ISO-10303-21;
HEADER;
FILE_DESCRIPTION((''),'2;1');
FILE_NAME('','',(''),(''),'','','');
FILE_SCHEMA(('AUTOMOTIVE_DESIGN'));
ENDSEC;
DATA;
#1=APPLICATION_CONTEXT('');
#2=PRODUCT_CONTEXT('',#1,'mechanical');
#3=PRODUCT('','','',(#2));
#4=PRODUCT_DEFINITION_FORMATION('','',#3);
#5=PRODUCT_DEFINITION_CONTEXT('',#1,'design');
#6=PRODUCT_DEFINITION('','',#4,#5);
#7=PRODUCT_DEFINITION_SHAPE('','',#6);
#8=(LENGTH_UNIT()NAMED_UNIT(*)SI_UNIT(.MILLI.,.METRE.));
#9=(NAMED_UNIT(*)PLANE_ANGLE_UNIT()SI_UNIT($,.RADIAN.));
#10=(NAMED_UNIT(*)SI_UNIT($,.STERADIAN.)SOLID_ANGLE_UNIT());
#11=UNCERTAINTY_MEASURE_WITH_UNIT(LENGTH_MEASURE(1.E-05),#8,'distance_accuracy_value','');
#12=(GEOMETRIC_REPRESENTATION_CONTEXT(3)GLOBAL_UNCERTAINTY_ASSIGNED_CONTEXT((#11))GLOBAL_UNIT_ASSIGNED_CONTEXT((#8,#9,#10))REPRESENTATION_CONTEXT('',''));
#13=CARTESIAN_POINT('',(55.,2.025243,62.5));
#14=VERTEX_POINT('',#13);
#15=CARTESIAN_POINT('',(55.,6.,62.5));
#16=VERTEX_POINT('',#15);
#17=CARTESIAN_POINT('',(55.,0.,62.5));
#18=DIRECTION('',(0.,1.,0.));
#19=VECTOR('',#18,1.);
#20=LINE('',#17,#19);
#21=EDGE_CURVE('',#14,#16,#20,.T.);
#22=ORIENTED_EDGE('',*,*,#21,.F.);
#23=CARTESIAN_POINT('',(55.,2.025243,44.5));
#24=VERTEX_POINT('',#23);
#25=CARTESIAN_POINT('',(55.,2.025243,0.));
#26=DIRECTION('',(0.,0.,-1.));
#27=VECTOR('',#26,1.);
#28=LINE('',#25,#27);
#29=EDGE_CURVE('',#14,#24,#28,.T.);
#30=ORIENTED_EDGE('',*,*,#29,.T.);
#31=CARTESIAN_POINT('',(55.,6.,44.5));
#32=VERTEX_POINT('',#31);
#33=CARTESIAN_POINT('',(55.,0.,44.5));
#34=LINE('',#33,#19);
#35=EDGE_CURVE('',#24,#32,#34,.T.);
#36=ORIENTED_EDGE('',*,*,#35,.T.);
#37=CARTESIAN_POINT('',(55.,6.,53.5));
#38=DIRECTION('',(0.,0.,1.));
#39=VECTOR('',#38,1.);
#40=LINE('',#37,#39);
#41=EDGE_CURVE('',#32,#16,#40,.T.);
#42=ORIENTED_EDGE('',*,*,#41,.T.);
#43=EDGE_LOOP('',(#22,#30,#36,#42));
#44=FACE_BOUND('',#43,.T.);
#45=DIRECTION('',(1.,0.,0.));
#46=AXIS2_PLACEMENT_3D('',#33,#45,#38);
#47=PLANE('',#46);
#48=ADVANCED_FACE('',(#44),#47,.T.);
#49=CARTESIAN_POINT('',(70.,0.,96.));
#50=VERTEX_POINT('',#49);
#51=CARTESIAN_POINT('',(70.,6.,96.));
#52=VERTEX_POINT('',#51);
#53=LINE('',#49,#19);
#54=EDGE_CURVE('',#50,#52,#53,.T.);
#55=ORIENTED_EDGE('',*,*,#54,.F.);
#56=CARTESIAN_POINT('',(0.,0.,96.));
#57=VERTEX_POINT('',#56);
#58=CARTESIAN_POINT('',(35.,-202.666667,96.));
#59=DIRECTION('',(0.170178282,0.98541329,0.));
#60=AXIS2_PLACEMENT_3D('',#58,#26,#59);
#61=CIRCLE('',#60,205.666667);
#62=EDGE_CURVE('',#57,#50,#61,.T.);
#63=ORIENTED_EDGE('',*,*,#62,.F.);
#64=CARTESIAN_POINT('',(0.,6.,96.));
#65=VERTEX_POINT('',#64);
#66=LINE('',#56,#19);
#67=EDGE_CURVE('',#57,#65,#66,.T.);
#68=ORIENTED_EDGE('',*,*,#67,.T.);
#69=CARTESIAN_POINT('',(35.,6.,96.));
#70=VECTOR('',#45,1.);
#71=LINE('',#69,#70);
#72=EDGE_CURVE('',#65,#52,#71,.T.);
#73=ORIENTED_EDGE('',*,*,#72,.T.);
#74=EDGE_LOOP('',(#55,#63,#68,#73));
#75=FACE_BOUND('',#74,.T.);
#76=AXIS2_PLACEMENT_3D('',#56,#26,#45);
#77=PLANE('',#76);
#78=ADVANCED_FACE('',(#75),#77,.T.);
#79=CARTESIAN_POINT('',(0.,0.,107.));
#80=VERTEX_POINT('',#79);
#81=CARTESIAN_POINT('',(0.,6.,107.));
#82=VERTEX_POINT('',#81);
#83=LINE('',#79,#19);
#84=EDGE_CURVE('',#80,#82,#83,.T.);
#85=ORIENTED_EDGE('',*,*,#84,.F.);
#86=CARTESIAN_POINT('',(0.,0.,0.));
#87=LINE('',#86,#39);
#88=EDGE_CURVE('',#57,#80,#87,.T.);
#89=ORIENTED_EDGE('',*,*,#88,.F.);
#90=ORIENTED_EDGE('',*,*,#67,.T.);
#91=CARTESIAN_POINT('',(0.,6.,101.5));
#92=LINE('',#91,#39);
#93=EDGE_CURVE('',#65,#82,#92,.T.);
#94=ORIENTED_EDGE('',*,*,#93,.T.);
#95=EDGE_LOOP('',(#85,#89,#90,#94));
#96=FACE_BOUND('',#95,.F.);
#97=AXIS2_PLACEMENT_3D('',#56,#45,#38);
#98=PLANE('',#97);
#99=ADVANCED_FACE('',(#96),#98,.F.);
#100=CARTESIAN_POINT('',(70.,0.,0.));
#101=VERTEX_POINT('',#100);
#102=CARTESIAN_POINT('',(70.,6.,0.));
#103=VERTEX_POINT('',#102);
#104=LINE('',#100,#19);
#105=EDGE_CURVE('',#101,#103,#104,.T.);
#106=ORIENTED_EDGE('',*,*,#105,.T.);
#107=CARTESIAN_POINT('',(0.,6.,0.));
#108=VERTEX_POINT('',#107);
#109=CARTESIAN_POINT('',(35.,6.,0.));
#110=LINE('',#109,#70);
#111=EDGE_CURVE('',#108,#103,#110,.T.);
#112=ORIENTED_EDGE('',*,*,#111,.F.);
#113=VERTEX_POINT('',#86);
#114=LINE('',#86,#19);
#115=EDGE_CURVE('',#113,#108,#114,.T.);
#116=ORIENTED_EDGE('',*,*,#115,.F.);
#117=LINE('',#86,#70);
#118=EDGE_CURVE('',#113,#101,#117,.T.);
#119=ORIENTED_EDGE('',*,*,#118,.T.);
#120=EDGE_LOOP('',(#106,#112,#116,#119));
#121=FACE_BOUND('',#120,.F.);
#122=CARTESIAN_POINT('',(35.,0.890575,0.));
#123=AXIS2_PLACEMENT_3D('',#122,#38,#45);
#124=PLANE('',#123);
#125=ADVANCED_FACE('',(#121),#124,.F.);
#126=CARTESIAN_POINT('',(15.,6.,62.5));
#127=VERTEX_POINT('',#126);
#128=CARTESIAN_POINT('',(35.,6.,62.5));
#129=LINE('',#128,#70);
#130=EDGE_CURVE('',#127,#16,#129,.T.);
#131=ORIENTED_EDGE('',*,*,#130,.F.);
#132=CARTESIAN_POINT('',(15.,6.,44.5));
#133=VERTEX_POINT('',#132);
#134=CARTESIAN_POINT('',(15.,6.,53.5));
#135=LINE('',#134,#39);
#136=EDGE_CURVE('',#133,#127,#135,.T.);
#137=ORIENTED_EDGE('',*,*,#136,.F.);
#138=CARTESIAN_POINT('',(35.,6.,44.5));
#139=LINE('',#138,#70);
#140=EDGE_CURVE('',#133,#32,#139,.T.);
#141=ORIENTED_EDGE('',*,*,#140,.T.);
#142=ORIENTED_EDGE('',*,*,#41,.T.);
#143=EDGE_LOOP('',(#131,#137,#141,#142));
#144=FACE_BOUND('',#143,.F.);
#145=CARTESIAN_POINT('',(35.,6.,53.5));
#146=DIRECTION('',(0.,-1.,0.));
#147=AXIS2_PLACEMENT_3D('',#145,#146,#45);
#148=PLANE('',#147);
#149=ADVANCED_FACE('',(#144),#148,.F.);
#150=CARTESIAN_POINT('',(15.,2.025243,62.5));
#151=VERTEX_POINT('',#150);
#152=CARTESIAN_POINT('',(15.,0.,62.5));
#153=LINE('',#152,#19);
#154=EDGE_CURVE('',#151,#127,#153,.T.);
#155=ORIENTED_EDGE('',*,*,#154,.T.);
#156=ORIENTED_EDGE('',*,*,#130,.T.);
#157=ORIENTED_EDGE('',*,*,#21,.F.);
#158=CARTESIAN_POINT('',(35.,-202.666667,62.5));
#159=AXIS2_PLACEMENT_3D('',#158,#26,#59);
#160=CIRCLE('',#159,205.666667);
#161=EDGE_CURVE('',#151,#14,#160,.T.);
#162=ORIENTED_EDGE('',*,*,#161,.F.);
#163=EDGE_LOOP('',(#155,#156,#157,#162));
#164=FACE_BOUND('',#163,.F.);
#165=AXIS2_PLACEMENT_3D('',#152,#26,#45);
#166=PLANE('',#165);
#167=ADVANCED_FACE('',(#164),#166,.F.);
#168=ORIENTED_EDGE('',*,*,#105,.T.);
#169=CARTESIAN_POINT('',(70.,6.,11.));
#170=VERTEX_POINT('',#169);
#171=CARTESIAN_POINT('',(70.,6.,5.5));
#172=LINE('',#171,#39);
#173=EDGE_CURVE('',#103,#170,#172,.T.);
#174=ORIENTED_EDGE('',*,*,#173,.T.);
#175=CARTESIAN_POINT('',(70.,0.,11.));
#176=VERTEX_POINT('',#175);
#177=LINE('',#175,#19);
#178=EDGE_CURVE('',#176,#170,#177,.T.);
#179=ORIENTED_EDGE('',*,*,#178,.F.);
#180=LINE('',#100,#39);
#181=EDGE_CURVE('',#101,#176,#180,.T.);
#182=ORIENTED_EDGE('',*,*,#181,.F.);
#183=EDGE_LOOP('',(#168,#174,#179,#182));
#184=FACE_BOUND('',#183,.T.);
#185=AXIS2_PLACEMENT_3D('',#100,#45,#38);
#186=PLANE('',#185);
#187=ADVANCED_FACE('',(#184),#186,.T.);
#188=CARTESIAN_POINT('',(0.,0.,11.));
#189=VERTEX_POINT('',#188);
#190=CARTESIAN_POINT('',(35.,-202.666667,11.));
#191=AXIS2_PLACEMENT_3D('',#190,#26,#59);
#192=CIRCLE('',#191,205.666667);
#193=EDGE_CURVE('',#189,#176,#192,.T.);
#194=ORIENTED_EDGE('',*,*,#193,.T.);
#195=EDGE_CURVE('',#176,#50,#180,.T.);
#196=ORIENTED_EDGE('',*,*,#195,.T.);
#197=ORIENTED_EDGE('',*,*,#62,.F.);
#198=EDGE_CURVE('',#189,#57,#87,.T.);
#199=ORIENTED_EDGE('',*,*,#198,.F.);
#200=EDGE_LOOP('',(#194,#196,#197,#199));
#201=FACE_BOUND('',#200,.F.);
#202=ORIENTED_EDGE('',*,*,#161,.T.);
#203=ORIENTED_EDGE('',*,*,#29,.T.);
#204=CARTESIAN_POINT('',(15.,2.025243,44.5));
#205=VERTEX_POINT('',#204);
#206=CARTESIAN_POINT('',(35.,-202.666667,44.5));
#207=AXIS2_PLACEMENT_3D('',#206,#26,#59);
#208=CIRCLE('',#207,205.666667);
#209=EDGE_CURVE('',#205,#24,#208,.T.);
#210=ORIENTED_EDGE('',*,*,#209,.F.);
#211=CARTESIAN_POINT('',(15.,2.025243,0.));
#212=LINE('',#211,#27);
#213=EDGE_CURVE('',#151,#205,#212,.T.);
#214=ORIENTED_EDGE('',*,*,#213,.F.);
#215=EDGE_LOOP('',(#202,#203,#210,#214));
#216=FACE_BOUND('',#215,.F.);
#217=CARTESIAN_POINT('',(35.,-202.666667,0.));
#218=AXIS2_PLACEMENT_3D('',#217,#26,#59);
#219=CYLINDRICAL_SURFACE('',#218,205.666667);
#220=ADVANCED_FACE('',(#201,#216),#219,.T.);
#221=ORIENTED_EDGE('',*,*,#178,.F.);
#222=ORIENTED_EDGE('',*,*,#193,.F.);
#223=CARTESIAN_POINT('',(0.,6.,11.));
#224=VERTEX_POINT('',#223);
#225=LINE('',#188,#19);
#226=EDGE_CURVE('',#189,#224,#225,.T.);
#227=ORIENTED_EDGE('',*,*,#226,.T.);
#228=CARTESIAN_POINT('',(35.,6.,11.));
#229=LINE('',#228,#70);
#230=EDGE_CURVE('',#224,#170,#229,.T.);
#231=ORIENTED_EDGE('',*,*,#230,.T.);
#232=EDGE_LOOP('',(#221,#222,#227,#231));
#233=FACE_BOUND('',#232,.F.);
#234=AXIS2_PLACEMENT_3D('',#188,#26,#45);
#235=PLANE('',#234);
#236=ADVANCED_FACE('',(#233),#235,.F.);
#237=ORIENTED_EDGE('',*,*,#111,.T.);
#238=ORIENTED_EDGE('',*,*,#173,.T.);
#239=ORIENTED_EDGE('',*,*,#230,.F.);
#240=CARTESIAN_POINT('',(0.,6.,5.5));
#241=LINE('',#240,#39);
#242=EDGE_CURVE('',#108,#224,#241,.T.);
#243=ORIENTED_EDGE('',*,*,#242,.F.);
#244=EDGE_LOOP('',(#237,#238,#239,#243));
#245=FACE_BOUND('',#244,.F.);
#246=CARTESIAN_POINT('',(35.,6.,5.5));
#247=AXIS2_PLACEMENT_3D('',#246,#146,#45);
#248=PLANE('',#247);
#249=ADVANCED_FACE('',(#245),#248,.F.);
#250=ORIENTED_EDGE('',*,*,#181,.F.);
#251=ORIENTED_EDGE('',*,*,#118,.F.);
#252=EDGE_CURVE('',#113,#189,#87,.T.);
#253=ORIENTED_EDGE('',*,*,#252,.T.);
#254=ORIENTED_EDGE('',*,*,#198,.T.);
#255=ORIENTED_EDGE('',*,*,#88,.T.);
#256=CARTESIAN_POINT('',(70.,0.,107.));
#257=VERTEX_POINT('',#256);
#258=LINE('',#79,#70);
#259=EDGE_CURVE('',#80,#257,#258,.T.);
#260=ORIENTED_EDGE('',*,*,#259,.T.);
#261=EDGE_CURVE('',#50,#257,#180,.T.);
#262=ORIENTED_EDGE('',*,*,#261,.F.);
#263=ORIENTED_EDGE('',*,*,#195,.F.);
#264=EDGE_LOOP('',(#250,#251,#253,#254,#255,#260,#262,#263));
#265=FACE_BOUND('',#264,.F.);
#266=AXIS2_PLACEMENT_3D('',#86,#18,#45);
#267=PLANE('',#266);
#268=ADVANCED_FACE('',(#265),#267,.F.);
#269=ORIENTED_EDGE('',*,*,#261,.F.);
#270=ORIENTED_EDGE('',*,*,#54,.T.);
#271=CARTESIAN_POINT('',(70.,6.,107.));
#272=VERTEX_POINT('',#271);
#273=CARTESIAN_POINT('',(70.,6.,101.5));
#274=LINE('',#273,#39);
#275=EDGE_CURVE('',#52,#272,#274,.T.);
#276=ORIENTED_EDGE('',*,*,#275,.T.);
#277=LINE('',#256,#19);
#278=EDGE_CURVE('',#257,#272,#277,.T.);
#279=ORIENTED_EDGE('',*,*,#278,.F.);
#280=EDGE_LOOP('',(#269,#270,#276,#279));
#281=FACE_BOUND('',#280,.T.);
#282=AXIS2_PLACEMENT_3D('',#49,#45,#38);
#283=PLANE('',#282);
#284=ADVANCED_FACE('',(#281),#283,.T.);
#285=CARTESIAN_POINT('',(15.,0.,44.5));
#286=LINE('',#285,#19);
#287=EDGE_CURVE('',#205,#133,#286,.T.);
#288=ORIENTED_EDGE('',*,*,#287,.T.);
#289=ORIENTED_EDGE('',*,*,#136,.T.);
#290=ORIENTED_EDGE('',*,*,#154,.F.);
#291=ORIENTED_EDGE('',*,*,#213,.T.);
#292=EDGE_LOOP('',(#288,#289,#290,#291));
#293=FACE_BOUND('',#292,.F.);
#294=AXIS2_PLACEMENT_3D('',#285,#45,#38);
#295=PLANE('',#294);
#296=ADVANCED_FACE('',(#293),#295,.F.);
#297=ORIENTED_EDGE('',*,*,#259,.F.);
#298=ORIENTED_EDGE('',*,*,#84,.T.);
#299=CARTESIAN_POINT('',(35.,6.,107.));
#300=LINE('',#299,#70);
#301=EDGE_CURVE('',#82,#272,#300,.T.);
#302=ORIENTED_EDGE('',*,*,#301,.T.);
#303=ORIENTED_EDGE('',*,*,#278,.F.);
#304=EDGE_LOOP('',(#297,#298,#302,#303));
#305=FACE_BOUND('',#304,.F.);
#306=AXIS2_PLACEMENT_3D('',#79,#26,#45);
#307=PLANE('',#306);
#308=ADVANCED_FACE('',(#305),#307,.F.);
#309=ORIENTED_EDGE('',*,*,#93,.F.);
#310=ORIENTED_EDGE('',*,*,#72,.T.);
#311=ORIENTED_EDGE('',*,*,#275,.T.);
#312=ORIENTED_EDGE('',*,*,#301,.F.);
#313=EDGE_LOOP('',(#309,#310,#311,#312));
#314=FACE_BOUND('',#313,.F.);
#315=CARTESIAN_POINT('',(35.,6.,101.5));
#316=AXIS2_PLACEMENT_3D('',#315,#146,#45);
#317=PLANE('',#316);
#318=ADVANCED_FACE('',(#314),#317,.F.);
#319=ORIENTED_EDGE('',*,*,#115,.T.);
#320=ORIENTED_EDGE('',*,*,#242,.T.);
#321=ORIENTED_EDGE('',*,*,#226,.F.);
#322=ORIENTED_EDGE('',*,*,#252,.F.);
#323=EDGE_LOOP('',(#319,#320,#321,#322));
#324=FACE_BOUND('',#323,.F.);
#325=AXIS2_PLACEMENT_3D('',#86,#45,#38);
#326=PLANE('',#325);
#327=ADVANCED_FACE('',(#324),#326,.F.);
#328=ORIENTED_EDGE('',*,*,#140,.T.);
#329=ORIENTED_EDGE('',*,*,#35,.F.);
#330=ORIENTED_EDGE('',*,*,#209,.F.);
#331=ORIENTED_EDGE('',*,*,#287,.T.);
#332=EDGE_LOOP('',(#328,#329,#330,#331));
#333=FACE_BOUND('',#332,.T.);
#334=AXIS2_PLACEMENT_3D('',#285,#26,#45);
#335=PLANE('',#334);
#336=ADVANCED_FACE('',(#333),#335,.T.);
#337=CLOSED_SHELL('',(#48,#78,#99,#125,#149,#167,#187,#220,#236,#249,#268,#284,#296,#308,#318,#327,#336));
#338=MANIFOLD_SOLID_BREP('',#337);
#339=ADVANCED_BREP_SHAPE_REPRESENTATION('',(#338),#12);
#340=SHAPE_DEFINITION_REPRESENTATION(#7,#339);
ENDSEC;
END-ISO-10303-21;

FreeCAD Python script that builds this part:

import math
import FreeCAD as App
import Part
import Sketcher
from FreeCAD import Vector

doc = App.newDocument("Part")
params = doc.addObject("Spreadsheet::Sheet", "Params")
for row, (alias, value) in enumerate([
    ("sketch1_width", "70 mm"),
    ("pad1_length", "107 mm"),
    ("sketch2_width", "70 mm"),
    ("sketch2_width2", "40 mm"),
    ("sketch2_height", "11 mm"),
    ("sketch2_height2", "18 mm"),
    ("pad2_length", "6 mm"),
], start=1):
    params.set(f"A{row}", alias)
    params.set(f"B{row}", "=" + value)
    params.setAlias(f"B{row}", alias)

body = doc.addObject("PartDesign::Body", "Body")

# Sketch on XY plane
sketch1 = body.newObject("Sketcher::SketchObject", "Sketch")
sketch1.AttachmentSupport = (doc.getObject("XY_Plane"), [""])
sketch1.MapMode = "FlatFace"
sketch1.addGeometry([
    Part.LineSegment(Vector(0, 0, 0), Vector(70, 0, 0)),
    Part.ArcOfCircle(Part.Circle(Vector(35, -203, 0), Vector(0, 0, 1), 206), math.radians(80.2), math.radians(99.8)),
], False)
sketch1.addConstraint([
    Sketcher.Constraint("Coincident", 0, 1, 1, 2),
    Sketcher.Constraint("Coincident", 1, 1, 0, 2),
    Sketcher.Constraint("Horizontal", 0),
    Sketcher.Constraint("Coincident", 0, 1, -1, 1),
    Sketcher.Constraint("DistanceX", 0, 1, 0, 2, 70.0),
    Sketcher.Constraint("Radius", 1, 205.666667),
])
sketch1.setExpression("Constraints[4]", "Params.sketch1_width")
pad1 = body.newObject("PartDesign::Pad", "Pad")
pad1.Profile = sketch1
pad1.setExpression("Length", "Params.pad1_length")

# Sketch on XZ plane
sketch2 = body.newObject("Sketcher::SketchObject", "Sketch001")
sketch2.AttachmentSupport = (doc.getObject("XZ_Plane"), [""])
sketch2.MapMode = "FlatFace"
sketch2.addGeometry([
    Part.LineSegment(Vector(0, 107, 0), Vector(0, 96, 0)),  # 0
    Part.LineSegment(Vector(0, 96, 0), Vector(70, 96, 0)),  # 1
    Part.LineSegment(Vector(70, 96, 0), Vector(70, 107, 0)),  # 2
    Part.LineSegment(Vector(70, 107, 0), Vector(0, 107, 0)),  # 3
    Part.LineSegment(Vector(15, 62, 0), Vector(15, 44, 0)),  # 4
    Part.LineSegment(Vector(15, 44, 0), Vector(55, 44, 0)),  # 5
    Part.LineSegment(Vector(55, 44, 0), Vector(55, 62, 0)),  # 6
    Part.LineSegment(Vector(55, 62, 0), Vector(15, 62, 0)),  # 7
    Part.LineSegment(Vector(0, 11, 0), Vector(0, 0, 0)),  # 8
    Part.LineSegment(Vector(0, 0, 0), Vector(70, 0, 0)),  # 9
    Part.LineSegment(Vector(70, 0, 0), Vector(70, 11, 0)),  # 10
    Part.LineSegment(Vector(70, 11, 0), Vector(0, 11, 0)),  # 11
], False)
sketch2.addConstraint([
    Sketcher.Constraint("Coincident", 0, 2, 1, 1),
    Sketcher.Constraint("Coincident", 1, 2, 2, 1),
    Sketcher.Constraint("Coincident", 2, 2, 3, 1),
    Sketcher.Constraint("Coincident", 3, 2, 0, 1),
    Sketcher.Constraint("Coincident", 4, 2, 5, 1),
    Sketcher.Constraint("Coincident", 5, 2, 6, 1),
    Sketcher.Constraint("Coincident", 6, 2, 7, 1),
    Sketcher.Constraint("Coincident", 7, 2, 4, 1),
    Sketcher.Constraint("Coincident", 8, 2, 9, 1),
    Sketcher.Constraint("Coincident", 9, 2, 10, 1),
    Sketcher.Constraint("Coincident", 10, 2, 11, 1),
    Sketcher.Constraint("Coincident", 11, 2, 8, 1),
    Sketcher.Constraint("Vertical", 0),
    Sketcher.Constraint("Horizontal", 1),
    Sketcher.Constraint("Vertical", 2),
    Sketcher.Constraint("Horizontal", 3),
    Sketcher.Constraint("Vertical", 4),
    Sketcher.Constraint("Horizontal", 5),
    Sketcher.Constraint("Vertical", 6),
    Sketcher.Constraint("Horizontal", 7),
    Sketcher.Constraint("Vertical", 8),
    Sketcher.Constraint("Horizontal", 9),
    Sketcher.Constraint("Vertical", 10),
    Sketcher.Constraint("Horizontal", 11),
    Sketcher.Constraint("Coincident", 8, 2, -1, 1),
    Sketcher.Constraint("PointOnObject", 0, 2, -2),
    Sketcher.Constraint("Vertical", 2, 2, 9, 2),
    Sketcher.Constraint("Equal", 2, 8),
    Sketcher.Constraint("DistanceX", 1, 1, 1, 2, 70.0),
    Sketcher.Constraint("DistanceX", 5, 1, 5, 2, 40.0),
    Sketcher.Constraint("DistanceY", 0, 2, 0, 1, 11.0),
    Sketcher.Constraint("DistanceY", 4, 2, 4, 1, 18.0),
    Sketcher.Constraint("DistanceY", -1, 1, 0, 2, 96.0),
    Sketcher.Constraint("DistanceX", -1, 1, 4, 2, 15.0),
    Sketcher.Constraint("DistanceY", -1, 1, 4, 2, 44.5),
])
sketch2.setExpression("Constraints[28]", "Params.sketch2_width")
sketch2.setExpression("Constraints[29]", "Params.sketch2_width2")
sketch2.setExpression("Constraints[30]", "Params.sketch2_height")
sketch2.setExpression("Constraints[31]", "Params.sketch2_height2")
pad2 = body.newObject("PartDesign::Pad", "Pad001")
pad2.Profile = sketch2
pad2.setExpression("Length", "Params.pad2_length")
pad2.Reversed = True

doc.recompute()
